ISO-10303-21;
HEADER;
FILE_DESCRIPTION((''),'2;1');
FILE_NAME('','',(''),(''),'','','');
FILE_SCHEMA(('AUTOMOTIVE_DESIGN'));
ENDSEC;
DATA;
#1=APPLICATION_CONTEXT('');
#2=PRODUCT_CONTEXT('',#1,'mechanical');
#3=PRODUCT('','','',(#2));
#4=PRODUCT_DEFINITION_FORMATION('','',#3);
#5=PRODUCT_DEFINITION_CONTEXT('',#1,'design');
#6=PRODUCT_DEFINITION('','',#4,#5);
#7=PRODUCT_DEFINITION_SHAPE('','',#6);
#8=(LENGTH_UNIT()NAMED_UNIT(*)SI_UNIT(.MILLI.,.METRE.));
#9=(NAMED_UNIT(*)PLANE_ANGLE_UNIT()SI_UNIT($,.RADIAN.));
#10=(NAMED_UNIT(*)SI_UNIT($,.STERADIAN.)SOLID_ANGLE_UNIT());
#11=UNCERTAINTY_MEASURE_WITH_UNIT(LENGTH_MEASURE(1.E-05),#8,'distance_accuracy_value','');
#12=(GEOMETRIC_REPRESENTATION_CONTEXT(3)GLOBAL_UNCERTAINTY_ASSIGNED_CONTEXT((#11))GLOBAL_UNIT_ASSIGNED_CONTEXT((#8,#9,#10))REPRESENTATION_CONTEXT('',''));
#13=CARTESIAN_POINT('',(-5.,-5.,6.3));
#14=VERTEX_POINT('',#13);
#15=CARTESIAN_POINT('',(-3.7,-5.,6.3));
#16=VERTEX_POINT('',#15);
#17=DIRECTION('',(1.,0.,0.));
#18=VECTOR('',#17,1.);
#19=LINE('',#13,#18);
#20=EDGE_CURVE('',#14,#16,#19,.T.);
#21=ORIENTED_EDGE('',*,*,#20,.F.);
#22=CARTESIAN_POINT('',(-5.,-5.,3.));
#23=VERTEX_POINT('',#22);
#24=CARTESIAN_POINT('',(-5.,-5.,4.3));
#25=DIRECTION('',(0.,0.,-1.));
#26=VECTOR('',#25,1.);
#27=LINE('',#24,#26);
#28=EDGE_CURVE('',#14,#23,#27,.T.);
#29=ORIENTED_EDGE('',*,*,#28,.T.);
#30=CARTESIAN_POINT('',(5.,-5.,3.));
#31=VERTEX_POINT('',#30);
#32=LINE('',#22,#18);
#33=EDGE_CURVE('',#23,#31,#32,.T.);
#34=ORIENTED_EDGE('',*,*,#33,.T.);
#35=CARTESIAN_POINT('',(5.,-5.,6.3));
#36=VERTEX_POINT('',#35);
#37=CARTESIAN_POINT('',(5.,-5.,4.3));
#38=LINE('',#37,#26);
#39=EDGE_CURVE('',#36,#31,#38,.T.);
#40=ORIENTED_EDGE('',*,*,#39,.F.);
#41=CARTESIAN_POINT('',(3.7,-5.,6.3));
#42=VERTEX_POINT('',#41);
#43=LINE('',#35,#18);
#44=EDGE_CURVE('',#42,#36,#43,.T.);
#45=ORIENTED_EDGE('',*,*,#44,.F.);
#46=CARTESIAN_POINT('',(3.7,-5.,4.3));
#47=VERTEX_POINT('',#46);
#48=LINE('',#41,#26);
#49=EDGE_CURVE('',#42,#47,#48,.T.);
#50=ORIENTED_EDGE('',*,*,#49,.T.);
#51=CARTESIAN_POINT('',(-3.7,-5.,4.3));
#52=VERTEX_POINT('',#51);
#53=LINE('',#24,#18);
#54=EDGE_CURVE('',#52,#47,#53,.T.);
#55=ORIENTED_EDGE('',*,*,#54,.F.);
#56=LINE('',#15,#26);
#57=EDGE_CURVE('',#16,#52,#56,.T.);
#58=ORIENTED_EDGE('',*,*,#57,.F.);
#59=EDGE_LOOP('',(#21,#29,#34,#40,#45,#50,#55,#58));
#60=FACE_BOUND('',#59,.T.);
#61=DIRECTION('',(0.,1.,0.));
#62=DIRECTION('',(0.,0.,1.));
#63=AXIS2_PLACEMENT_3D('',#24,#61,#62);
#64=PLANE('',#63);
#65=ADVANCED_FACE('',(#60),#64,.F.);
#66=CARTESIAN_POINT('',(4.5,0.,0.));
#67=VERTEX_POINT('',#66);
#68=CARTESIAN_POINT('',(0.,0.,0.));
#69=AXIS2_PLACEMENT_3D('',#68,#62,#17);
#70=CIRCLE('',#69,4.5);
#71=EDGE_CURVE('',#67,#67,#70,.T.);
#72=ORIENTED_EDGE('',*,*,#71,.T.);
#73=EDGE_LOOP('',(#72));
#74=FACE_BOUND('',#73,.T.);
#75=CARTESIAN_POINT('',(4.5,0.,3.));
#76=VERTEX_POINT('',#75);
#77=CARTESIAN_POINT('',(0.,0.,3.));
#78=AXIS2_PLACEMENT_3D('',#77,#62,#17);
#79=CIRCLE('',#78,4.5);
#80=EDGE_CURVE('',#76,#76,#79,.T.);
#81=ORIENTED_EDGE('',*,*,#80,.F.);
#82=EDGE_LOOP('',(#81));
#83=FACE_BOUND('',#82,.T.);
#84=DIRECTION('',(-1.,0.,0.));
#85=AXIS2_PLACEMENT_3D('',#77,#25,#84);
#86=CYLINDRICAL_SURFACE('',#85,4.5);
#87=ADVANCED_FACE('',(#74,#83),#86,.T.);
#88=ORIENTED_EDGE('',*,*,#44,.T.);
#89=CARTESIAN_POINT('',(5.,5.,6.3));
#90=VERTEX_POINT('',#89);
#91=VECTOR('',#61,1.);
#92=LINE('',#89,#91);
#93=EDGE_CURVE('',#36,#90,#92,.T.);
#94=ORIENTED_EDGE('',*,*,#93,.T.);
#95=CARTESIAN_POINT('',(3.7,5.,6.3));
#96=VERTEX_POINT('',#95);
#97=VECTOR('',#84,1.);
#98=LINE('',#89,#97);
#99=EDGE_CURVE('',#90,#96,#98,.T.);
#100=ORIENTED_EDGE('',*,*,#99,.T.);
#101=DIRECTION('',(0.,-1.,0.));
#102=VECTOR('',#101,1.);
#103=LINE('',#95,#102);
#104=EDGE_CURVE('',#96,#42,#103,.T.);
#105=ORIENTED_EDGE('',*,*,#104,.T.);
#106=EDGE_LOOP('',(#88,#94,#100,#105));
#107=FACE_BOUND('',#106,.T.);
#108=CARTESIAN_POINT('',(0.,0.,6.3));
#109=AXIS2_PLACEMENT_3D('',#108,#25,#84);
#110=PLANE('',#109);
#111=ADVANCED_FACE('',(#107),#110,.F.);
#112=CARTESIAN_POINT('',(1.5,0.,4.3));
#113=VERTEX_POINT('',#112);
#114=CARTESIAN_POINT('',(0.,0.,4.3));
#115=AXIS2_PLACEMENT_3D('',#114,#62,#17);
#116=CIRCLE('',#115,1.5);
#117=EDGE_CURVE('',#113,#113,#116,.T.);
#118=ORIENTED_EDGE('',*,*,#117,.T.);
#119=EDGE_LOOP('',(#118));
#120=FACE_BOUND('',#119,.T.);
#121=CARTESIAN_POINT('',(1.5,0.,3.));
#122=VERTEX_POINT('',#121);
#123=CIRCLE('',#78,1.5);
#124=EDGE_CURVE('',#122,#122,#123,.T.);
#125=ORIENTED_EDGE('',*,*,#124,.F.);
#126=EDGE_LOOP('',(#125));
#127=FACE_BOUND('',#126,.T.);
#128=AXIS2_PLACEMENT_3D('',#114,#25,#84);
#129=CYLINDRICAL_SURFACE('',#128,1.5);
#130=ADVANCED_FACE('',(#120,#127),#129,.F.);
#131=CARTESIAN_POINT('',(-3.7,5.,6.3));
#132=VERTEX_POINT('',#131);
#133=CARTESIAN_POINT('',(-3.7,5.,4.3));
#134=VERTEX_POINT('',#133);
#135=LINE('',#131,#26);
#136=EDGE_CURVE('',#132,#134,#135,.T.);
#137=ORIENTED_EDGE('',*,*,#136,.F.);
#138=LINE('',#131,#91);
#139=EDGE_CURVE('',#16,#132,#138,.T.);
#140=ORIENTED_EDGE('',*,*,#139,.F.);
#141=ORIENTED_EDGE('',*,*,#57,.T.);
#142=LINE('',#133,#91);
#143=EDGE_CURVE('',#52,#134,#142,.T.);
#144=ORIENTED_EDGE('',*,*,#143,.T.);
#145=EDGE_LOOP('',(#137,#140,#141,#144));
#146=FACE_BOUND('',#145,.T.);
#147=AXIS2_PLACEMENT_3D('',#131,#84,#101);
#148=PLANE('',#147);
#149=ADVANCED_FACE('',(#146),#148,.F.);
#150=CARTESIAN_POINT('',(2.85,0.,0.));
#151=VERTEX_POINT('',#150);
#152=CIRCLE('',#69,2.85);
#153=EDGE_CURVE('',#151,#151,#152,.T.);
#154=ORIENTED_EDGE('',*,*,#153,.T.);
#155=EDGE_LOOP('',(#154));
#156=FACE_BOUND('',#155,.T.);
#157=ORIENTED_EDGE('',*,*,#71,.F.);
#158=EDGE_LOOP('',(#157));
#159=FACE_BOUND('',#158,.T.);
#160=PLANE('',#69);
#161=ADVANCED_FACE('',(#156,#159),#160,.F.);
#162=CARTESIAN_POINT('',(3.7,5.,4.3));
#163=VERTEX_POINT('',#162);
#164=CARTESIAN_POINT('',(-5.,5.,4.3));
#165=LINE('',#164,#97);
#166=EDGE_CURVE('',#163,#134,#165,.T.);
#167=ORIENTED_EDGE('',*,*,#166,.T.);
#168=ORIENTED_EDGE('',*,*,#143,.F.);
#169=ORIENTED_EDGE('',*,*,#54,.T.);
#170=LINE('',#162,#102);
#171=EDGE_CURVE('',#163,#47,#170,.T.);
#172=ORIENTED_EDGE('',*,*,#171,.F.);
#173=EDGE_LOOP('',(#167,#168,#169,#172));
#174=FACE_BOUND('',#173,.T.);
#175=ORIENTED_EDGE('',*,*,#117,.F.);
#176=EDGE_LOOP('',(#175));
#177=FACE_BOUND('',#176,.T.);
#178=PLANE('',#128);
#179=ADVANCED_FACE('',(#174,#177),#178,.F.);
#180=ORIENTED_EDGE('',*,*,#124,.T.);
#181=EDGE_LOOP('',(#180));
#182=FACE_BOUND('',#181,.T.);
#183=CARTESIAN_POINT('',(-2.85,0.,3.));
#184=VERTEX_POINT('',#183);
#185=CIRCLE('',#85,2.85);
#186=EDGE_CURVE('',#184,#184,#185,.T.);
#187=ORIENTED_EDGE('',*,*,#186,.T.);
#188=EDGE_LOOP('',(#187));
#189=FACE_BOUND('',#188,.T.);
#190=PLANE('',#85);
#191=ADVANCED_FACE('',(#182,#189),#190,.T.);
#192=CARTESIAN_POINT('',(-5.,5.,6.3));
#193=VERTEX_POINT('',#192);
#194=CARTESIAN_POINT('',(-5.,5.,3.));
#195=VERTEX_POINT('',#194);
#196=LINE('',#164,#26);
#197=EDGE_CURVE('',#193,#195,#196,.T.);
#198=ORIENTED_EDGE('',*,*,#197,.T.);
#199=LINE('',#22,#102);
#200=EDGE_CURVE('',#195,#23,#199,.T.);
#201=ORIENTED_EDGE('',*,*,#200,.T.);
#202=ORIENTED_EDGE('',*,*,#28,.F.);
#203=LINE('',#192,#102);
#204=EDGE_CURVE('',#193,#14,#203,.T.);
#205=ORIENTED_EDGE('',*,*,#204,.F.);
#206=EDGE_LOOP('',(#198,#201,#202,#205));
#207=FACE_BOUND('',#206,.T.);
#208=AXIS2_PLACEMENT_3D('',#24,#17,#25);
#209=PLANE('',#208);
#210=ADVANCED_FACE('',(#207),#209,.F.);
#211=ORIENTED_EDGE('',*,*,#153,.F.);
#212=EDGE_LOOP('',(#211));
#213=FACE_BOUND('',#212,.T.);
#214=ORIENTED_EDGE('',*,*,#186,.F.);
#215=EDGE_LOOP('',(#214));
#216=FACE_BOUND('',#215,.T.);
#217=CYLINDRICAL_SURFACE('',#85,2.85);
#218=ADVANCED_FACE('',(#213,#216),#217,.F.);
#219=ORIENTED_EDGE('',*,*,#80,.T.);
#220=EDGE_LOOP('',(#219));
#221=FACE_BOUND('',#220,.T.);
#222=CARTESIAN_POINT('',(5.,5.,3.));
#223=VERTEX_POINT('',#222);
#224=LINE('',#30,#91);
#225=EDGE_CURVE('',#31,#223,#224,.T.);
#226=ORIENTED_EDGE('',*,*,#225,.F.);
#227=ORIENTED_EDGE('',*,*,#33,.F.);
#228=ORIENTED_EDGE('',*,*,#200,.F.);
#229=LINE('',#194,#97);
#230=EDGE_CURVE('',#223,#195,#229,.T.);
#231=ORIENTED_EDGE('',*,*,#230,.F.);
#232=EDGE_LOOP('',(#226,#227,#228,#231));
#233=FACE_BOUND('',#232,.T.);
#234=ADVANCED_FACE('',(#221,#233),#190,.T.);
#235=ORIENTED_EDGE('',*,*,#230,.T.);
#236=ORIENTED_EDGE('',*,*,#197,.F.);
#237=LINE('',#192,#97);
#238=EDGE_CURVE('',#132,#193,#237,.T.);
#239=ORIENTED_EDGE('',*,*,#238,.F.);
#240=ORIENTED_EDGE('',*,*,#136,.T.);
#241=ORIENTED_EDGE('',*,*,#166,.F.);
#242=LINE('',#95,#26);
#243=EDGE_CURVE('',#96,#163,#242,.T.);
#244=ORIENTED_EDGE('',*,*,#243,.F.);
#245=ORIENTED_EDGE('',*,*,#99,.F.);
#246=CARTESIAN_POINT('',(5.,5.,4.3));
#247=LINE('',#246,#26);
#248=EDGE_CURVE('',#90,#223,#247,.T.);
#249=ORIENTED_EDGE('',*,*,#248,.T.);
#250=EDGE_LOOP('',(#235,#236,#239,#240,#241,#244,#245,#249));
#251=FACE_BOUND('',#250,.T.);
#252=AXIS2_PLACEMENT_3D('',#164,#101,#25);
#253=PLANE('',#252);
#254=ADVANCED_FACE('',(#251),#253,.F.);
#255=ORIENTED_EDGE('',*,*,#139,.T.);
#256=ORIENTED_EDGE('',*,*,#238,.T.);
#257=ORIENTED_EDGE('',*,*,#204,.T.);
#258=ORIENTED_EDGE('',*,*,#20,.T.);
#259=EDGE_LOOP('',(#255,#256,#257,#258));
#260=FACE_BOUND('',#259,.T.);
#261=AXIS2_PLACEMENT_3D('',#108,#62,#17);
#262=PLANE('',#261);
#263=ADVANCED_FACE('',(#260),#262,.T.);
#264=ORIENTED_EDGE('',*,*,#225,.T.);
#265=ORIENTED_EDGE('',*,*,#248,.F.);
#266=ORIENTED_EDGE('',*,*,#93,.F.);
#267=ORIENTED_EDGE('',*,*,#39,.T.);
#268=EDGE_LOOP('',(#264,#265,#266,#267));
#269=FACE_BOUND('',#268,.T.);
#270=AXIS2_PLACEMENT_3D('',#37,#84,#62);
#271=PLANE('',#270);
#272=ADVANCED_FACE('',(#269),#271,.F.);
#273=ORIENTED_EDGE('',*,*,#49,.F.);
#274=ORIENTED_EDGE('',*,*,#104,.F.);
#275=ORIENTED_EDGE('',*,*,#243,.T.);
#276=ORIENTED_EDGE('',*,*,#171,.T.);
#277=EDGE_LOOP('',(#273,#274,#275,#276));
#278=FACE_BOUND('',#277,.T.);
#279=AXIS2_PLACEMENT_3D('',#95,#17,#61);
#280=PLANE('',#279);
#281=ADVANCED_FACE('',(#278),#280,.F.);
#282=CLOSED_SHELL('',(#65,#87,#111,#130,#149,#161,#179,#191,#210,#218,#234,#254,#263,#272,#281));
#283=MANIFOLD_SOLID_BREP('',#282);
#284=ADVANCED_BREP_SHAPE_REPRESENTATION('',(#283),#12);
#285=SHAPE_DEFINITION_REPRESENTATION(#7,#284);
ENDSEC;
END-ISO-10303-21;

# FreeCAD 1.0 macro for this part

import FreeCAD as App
import Part
import Sketcher
Q = App.Units.Quantity

doc = App.newDocument("Part")
params = doc.addObject("Spreadsheet::Sheet", "Params")
for row, (alias, value) in enumerate([
    ("sketch1_diameter", "9 mm"),
    ("sketch1_diameter2", "5.7 mm"),
    ("pad1_length", "3 mm"),
    ("sketch2_diameter", "3 mm"),
    ("sketch2_width", "10 mm"),
    ("pad2_length", "1.3 mm"),
    ("sketch3_height", "10 mm"),
    ("sketch3_width", "1.3 mm"),
    ("pad3_length", "2 mm"),
], start=1):
    params.set(f"A{row}", alias)
    params.set(f"B{row}", "=" + value)
    params.setAlias(f"B{row}", alias)

body = doc.addObject("PartDesign::Body", "Body")

# Sketch on XY plane
sketch1 = body.newObject("Sketcher::SketchObject", "Sketch")
sketch1.AttachmentSupport = (doc.getObject("XY_Plane"), [""])
sketch1.MapMode = "FlatFace"
sketch1.addGeometry(Part.Circle(App.Vector(0, 0, 0), App.Vector(0, 0, 1), 4.5), False)
sketch1.addGeometry(Part.Circle(App.Vector(0, 0, 0), App.Vector(0, 0, 1), 2.9), False)
sketch1.addConstraint(Sketcher.Constraint("Coincident", 0, 3, -1, 1))
sketch1.addConstraint(Sketcher.Constraint("Coincident", 1, 3, -1, 1))
sketch1.addConstraint(Sketcher.Constraint("Diameter", 0, Q("9 mm")))
sketch1.addConstraint(Sketcher.Constraint("Diameter", 1, Q("5.7 mm")))
sketch1.setExpression("Constraints[2]", "Params.sketch1_diameter")
sketch1.setExpression("Constraints[3]", "Params.sketch1_diameter2")
pad1 = body.newObject("PartDesign::Pad", "Pad")
pad1.Profile = sketch1
pad1.setExpression("Length", "Params.pad1_length")

# Sketch on XY plane
sketch2 = body.newObject("Sketcher::SketchObject", "Sketch001")
sketch2.AttachmentSupport = (doc.getObject("XY_Plane"), [""])
sketch2.MapMode = "FlatFace"
sketch2.AttachmentOffset = App.Placement(App.Vector(0, 0, 3), App.Rotation())
sketch2.addGeometry(Part.LineSegment(App.Vector(-5, 5, 0), App.Vector(-5, -5, 0)), False)
sketch2.addGeometry(Part.LineSegment(App.Vector(-5, -5, 0), App.Vector(5, -5, 0)), False)
sketch2.addGeometry(Part.LineSegment(App.Vector(5, -5, 0), App.Vector(5, 5, 0)), False)
sketch2.addGeometry(Part.LineSegment(App.Vector(5, 5, 0), App.Vector(-5, 5, 0)), False)
sketch2.addGeometry(Part.Circle(App.Vector(0, 0, 0), App.Vector(0, 0, 1), 1.5), False)
sketch2.addConstraint(Sketcher.Constraint("Coincident", 0, 2, 1, 1))
sketch2.addConstraint(Sketcher.Constraint("Coincident", 1, 2, 2, 1))
sketch2.addConstraint(Sketcher.Constraint("Coincident", 2, 2, 3, 1))
sketch2.addConstraint(Sketcher.Constraint("Coincident", 3, 2, 0, 1))
sketch2.addConstraint(Sketcher.Constraint("Vertical", 0))
sketch2.addConstraint(Sketcher.Constraint("Horizontal", 1))
sketch2.addConstraint(Sketcher.Constraint("Vertical", 2))
sketch2.addConstraint(Sketcher.Constraint("Horizontal", 3))
sketch2.addConstraint(Sketcher.Constraint("Coincident", 4, 3, -1, 1))
sketch2.addConstraint(Sketcher.Constraint("Symmetric", 0, 2, 2, 2, -1, 1))
sketch2.addConstraint(Sketcher.Constraint("Equal", 3, 0))
sketch2.addConstraint(Sketcher.Constraint("Diameter", 4, Q("3 mm")))
sketch2.addConstraint(Sketcher.Constraint("DistanceX", 1, 1, 1, 2, Q("10 mm")))
sketch2.setExpression("Constraints[11]", "Params.sketch2_diameter")
sketch2.setExpression("Constraints[12]", "Params.sketch2_width")
pad2 = body.newObject("PartDesign::Pad", "Pad001")
pad2.Profile = sketch2
pad2.setExpression("Length", "Params.pad2_length")

# Sketch on XY plane
sketch3 = body.newObject("Sketcher::SketchObject", "Sketch002")
sketch3.AttachmentSupport = (doc.getObject("XY_Plane"), [""])
sketch3.MapMode = "FlatFace"
sketch3.AttachmentOffset = App.Placement(App.Vector(0, 0, 4.3), App.Rotation())
sketch3.addGeometry(Part.LineSegment(App.Vector(-5, 5, 0), App.Vector(-5, -5, 0)), False)
sketch3.addGeometry(Part.LineSegment(App.Vector(-5, -5, 0), App.Vector(-3.7, -5, 0)), False)
sketch3.addGeometry(Part.LineSegment(App.Vector(-3.7, -5, 0), App.Vector(-3.7, 5, 0)), False)
sketch3.addGeometry(Part.LineSegment(App.Vector(-3.7, 5, 0), App.Vector(-5, 5, 0)), False)
sketch3.addGeometry(Part.LineSegment(App.Vector(3.7, 5, 0), App.Vector(3.7, -5, 0)), False)
sketch3.addGeometry(Part.LineSegment(App.Vector(3.7, -5, 0), App.Vector(5, -5, 0)), False)
sketch3.addGeometry(Part.LineSegment(App.Vector(5, -5, 0), App.Vector(5, 5, 0)), False)
sketch3.addGeometry(Part.LineSegment(App.Vector(5, 5, 0), App.Vector(3.7, 5, 0)), False)
sketch3.addConstraint(Sketcher.Constraint("Coincident", 0, 2, 1, 1))
sketch3.addConstraint(Sketcher.Constraint("Coincident", 1, 2, 2, 1))
sketch3.addConstraint(Sketcher.Constraint("Coincident", 2, 2, 3, 1))
sketch3.addConstraint(Sketcher.Constraint("Coincident", 3, 2, 0, 1))
sketch3.addConstraint(Sketcher.Constraint("Coincident", 4, 2, 5, 1))
sketch3.addConstraint(Sketcher.Constraint("Coincident", 5, 2, 6, 1))
sketch3.addConstraint(Sketcher.Constraint("Coincident", 6, 2, 7, 1))
sketch3.addConstraint(Sketcher.Constraint("Coincident", 7, 2, 4, 1))
sketch3.addConstraint(Sketcher.Constraint("Vertical", 0))
sketch3.addConstraint(Sketcher.Constraint("Horizontal", 1))
sketch3.addConstraint(Sketcher.Constraint("Vertical", 2))
sketch3.addConstraint(Sketcher.Constraint("Horizontal", 3))
sketch3.addConstraint(Sketcher.Constraint("Vertical", 4))
sketch3.addConstraint(Sketcher.Constraint("Horizontal", 5))
sketch3.addConstraint(Sketcher.Constraint("Vertical", 6))
sketch3.addConstraint(Sketcher.Constraint("Horizontal", 7))
sketch3.addConstraint(Sketcher.Constraint("Symmetric", 2, 2, 4, 2, -1, 1))
sketch3.addConstraint(Sketcher.Constraint("Symmetric", 0, 2, 6, 2, -1, 1))
sketch3.addConstraint(Sketcher.Constraint("Horizontal", 1, 2, 4, 2))
sketch3.addConstraint(Sketcher.Constraint("DistanceY", 0, 2, 0, 1, Q("10 mm")))
sketch3.addConstraint(Sketcher.Constraint("DistanceX", 1, 1, 1, 2, Q("1.3 mm")))
sketch3.addConstraint(Sketcher.Constraint("DistanceX", 0, 2, -1, 1, Q("5 mm")))
sketch3.setExpression("Constraints[19]", "Params.sketch3_height")
sketch3.setExpression("Constraints[20]", "Params.sketch3_width")
pad3 = body.newObject("PartDesign::Pad", "Pad002")
pad3.Profile = sketch3
pad3.setExpression("Length", "Params.pad3_length")

doc.recompute()
